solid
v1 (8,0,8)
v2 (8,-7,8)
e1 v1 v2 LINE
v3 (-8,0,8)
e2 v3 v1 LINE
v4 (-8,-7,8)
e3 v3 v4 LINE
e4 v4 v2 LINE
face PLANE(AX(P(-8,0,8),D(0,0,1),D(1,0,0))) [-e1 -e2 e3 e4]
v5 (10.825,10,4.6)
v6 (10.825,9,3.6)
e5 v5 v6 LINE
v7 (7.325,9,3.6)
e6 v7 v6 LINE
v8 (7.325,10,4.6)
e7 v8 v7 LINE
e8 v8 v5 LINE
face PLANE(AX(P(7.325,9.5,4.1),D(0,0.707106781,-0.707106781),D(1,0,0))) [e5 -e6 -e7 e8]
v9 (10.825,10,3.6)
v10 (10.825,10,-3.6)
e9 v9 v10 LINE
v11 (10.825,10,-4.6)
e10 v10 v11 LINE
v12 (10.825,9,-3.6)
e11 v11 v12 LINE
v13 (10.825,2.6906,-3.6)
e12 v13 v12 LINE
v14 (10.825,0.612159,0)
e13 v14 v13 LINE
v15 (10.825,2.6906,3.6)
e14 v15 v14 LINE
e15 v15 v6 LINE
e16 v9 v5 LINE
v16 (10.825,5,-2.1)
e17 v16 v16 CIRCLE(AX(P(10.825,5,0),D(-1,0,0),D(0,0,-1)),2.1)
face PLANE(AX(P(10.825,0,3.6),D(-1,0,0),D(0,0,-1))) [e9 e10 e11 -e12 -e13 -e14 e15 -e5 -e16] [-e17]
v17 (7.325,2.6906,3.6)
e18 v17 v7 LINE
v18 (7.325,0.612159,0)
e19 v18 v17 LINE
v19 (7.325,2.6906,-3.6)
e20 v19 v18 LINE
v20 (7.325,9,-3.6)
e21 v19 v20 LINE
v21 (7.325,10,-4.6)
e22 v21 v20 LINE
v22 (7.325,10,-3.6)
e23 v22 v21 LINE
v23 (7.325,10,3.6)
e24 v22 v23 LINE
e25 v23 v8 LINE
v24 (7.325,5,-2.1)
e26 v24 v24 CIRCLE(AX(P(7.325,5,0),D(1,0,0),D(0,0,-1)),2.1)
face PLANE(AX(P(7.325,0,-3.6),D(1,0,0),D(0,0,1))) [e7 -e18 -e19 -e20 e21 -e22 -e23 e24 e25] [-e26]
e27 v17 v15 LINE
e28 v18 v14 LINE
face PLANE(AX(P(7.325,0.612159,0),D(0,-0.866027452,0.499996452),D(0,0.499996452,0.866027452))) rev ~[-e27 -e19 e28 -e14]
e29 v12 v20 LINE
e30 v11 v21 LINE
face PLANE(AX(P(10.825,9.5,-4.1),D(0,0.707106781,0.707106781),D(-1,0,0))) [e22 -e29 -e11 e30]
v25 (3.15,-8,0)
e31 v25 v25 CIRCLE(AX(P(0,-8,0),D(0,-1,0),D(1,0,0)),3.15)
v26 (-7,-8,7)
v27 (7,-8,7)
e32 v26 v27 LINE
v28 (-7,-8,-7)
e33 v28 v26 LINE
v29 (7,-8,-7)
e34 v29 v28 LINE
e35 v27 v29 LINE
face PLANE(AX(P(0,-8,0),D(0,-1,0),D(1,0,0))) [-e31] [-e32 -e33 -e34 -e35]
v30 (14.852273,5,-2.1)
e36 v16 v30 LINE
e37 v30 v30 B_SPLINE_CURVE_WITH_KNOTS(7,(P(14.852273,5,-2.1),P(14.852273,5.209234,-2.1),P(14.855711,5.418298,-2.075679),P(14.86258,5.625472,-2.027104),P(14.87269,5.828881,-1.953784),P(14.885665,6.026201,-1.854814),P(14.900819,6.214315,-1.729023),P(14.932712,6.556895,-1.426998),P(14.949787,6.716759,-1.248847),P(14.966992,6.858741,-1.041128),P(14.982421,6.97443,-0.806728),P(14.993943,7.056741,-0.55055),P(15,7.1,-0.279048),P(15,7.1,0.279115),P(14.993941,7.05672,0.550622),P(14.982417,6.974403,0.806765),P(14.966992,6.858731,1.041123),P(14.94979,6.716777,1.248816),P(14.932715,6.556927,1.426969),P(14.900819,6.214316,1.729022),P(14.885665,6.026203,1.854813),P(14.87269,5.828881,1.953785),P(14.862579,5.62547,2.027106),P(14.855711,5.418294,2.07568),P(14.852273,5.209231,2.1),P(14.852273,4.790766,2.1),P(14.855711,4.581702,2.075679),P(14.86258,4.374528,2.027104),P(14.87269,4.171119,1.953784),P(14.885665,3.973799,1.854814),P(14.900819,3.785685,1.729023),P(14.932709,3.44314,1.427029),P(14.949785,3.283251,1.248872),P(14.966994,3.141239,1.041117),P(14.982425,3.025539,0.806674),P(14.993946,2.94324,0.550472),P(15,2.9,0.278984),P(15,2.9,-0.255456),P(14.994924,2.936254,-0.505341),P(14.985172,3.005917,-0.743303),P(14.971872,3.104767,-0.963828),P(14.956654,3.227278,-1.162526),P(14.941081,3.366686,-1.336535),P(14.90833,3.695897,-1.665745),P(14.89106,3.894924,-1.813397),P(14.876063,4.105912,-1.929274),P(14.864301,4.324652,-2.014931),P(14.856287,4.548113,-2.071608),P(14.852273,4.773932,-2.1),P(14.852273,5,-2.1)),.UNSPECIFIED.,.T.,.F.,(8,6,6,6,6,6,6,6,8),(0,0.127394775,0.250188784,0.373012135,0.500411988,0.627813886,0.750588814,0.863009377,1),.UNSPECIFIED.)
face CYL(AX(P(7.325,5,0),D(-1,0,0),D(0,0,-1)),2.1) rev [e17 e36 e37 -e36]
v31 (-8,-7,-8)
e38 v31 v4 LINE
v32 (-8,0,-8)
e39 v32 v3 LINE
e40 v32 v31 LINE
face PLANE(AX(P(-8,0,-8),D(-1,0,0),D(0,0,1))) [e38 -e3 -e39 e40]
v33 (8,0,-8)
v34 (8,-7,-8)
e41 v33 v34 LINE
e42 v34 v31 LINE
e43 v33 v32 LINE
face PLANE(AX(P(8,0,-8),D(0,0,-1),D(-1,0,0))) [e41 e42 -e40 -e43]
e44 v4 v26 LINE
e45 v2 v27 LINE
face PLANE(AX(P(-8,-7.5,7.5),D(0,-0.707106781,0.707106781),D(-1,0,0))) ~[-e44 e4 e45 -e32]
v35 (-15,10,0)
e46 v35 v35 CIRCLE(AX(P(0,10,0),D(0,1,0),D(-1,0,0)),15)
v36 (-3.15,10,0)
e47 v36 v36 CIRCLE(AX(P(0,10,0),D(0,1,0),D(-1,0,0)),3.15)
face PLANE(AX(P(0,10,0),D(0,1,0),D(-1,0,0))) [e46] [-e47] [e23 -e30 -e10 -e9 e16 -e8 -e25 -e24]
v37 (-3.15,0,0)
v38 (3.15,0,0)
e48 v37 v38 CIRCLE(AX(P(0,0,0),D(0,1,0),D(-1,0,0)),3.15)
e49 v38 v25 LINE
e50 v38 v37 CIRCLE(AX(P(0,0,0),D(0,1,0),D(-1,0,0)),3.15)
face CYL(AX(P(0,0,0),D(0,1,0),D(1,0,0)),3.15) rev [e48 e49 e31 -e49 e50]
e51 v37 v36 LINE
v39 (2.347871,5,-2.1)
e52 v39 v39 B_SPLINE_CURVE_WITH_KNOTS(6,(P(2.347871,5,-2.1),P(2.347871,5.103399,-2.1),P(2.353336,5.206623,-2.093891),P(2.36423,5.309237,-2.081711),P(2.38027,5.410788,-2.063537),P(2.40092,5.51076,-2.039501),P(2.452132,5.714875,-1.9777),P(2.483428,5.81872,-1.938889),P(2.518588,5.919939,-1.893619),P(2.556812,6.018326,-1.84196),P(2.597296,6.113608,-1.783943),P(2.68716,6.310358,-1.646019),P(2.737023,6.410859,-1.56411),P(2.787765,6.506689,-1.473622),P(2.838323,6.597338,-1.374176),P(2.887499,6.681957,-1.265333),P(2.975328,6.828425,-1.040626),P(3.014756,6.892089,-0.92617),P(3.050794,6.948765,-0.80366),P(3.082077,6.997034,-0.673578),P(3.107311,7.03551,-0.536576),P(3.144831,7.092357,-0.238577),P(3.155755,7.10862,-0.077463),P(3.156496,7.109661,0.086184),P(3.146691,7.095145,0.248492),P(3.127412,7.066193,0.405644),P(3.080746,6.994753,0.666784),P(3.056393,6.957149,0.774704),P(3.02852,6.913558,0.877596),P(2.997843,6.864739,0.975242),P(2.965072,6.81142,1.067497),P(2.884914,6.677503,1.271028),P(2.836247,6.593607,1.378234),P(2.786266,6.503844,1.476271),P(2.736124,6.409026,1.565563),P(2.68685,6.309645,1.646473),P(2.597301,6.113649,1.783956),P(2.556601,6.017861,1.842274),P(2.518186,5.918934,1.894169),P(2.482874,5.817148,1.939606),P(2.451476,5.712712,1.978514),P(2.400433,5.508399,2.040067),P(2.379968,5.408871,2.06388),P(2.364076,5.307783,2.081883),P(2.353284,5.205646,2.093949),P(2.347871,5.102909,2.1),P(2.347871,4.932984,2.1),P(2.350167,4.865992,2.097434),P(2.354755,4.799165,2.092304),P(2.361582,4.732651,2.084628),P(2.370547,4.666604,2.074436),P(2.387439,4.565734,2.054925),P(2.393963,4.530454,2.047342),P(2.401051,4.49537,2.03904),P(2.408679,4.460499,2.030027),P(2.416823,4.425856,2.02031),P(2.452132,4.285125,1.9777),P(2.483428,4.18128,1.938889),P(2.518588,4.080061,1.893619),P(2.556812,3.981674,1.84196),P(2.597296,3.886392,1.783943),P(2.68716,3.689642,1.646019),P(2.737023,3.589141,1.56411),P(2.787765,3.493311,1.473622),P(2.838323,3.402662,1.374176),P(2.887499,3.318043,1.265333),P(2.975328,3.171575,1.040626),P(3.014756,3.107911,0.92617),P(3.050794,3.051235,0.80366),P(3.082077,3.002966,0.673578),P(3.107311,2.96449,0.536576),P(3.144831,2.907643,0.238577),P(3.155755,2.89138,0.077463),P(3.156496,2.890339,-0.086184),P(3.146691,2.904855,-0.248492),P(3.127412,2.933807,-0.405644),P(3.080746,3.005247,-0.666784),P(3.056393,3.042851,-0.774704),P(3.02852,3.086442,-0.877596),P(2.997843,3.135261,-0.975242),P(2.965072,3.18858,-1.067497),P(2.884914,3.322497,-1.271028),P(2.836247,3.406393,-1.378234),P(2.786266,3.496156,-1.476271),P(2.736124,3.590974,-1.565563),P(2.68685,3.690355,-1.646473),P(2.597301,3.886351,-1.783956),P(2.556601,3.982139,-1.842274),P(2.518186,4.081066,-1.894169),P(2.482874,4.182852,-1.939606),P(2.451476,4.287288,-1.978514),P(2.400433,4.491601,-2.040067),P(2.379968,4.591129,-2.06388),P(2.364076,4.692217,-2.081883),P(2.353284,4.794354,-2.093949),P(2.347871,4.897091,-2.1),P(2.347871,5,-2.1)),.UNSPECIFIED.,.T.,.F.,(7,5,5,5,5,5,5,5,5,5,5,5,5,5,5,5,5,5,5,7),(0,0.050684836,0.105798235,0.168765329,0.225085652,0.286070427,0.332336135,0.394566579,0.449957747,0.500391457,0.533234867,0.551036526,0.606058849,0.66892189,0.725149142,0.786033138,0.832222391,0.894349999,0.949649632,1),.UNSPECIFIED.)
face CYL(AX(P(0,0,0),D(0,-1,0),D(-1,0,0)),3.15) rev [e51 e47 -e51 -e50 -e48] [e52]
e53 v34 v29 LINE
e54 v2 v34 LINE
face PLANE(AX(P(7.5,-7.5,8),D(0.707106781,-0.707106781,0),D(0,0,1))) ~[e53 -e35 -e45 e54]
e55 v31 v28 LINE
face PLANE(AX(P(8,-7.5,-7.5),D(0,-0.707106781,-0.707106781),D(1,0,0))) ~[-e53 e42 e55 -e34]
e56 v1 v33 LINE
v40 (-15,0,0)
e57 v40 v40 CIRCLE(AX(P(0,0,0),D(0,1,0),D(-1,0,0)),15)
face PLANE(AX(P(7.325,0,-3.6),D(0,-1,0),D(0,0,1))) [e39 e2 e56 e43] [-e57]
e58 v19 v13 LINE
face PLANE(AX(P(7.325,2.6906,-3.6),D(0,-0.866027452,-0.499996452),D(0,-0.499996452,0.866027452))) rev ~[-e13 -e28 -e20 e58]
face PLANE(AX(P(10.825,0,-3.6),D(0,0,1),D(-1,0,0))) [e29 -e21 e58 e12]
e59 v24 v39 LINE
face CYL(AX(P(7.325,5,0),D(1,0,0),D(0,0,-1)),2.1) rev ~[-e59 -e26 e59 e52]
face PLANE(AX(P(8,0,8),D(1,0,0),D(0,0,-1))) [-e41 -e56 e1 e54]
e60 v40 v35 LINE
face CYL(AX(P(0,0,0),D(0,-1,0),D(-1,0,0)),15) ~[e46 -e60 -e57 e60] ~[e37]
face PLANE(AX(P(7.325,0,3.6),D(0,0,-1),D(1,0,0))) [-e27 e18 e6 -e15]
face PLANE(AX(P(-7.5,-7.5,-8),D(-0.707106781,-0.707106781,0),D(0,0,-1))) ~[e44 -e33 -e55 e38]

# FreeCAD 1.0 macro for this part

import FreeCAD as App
import Part
import Sketcher

V = App.Vector
Q = App.Units.Quantity


def edges_at(feature, points):
    """Names of the edges that pass closest to the given points."""
    edges = feature.Shape.Edges
    near = lambda p: min(range(len(edges)), key=lambda i: edges[i].distToShape(Part.Vertex(*p))[0])
    return sorted({f"Edge{near(p) + 1}" for p in points})


def add_polygon(sketch, points):
    """Adds a closed chain of lines whose ends are joined by coincident constraints."""
    first, n = sketch.GeometryCount, len(points)
    for a, b in zip(points, points[1:] + points[:1]):
        sketch.addGeometry(Part.LineSegment(App.Vector(*a, 0), App.Vector(*b, 0)), False)
    for i in range(n):
        sketch.addConstraint(Sketcher.Constraint("Coincident", first + i, 2, first + (i + 1) % n, 1))

doc = App.newDocument("Part")
body = doc.addObject("PartDesign::Body", "Body")

sketch1 = body.newObject("Sketcher::SketchObject", "Sketch")
sketch1.AttachmentSupport = (doc.getObject("XZ_Plane"), [""])
sketch1.MapMode = "FlatFace"
sketch1.addGeometry(Part.Circle(V(0, 0, 0), V(0, 0, 1), 15), False)
add_polygon(sketch1, [(10.8, 3.6), (7.3, 3.6), (7.3, -3.6), (10.8, -3.6)])
sketch1.addGeometry(Part.Circle(V(0, 0, 0), V(0, 0, 1), 3.1), False)
sketch1.addConstraint(Sketcher.Constraint("Horizontal", 1))
sketch1.addConstraint(Sketcher.Constraint("Vertical", 2))
sketch1.addConstraint(Sketcher.Constraint("Horizontal", 3))
sketch1.addConstraint(Sketcher.Constraint("Vertical", 4))
sketch1.addConstraint(Sketcher.Constraint("Coincident", 0, 3, -1, 1))
sketch1.addConstraint(Sketcher.Constraint("Coincident", 5, 3, -1, 1))
sketch1.addConstraint(Sketcher.Constraint("Diameter", 0, 30.0))
sketch1.addConstraint(Sketcher.Constraint("Diameter", 5, 6.3))
sketch1.addConstraint(Sketcher.Constraint("DistanceX", 1, 2, 1, 1, 3.5))
sketch1.addConstraint(Sketcher.Constraint("DistanceY", 2, 2, 2, 1, 7.2))
sketch1.addConstraint(Sketcher.Constraint("DistanceY", -1, 1, 1, 2, 3.6))
sketch1.addConstraint(Sketcher.Constraint("DistanceX", -1, 1, 1, 2, 7.325))
pad1 = body.newObject("PartDesign::Pad", "Pad")
pad1.Profile = sketch1
pad1.Length = 10
pad1.Reversed = True

sketch2 = body.newObject("Sketcher::SketchObject", "Sketch001")
sketch2.AttachmentSupport = (doc.getObject("YZ_Plane"), [""])
sketch2.MapMode = "FlatFace"
sketch2.AttachmentOffset = App.Placement(V(0, 0, 7.325), App.Rotation())
sketch2.addGeometry(Part.Circle(V(5, 0, 0), V(0, 0, 1), 2.1), False)
sketch2.addConstraint(Sketcher.Constraint("PointOnObject", 0, 3, -1))
sketch2.addConstraint(Sketcher.Constraint("Diameter", 0, 4.2))
sketch2.addConstraint(Sketcher.Constraint("DistanceX", -1, 1, 0, 3, 5.0))
pocket1 = body.newObject("PartDesign::Pocket", "Pocket")
pocket1.Profile = sketch2
pocket1.Length = 16
pocket1.Midplane = True

sketch3 = body.newObject("Sketcher::SketchObject", "Sketch002")
sketch3.AttachmentSupport = (doc.getObject("YZ_Plane"), [""])
sketch3.MapMode = "FlatFace"
sketch3.AttachmentOffset = App.Placement(V(0, 0, 7.325), App.Rotation())
add_polygon(sketch3, [(0, -3.6), (2.7, -3.6), (0.6, 0), (2.7, 3.6), (0, 3.6)])
sketch3.addConstraint(Sketcher.Constraint("Horizontal", 0))
sketch3.addConstraint(Sketcher.Constraint("Horizontal", 3))
sketch3.addConstraint(Sketcher.Constraint("Vertical", 4))
sketch3.addConstraint(Sketcher.Constraint("Symmetric", 3, 2, 4, 2, -1, 1))
sketch3.addConstraint(Sketcher.Constraint("PointOnObject", 1, 2, -1))
sketch3.addConstraint(Sketcher.Constraint("Vertical", 0, 2, 2, 2))
sketch3.addConstraint(Sketcher.Constraint("Angle", 1, Q("119.9998 deg")))
sketch3.addConstraint(Sketcher.Constraint("DistanceY", 4, 2, 4, 1, 7.2))
sketch3.addConstraint(Sketcher.Constraint("DistanceX", 0, 1, 0, 2, 2.6906))
pad2 = body.newObject("PartDesign::Pad", "Pad001")
pad2.Profile = sketch3
pad2.Type = "UpToFirst"

sketch4 = body.newObject("Sketcher::SketchObject", "Sketch003")
sketch4.AttachmentSupport = (doc.getObject("XZ_Plane"), [""])
sketch4.MapMode = "FlatFace"
add_polygon(sketch4, [(8, 8), (-8, 8), (-8, -8), (8, -8)])
sketch4.addGeometry(Part.Circle(V(0, 0, 0), V(0, 0, 1), 3.1), False)
sketch4.addConstraint(Sketcher.Constraint("Horizontal", 0))
sketch4.addConstraint(Sketcher.Constraint("Vertical", 1))
sketch4.addConstraint(Sketcher.Constraint("Horizontal", 2))
sketch4.addConstraint(Sketcher.Constraint("Vertical", 3))
sketch4.addConstraint(Sketcher.Constraint("Coincident", 4, 3, -1, 1))
sketch4.addConstraint(Sketcher.Constraint("Symmetric", 0, 2, 2, 2, -1, 1))
sketch4.addConstraint(Sketcher.Constraint("Equal", 2, 1))
sketch4.addConstraint(Sketcher.Constraint("DistanceX", 0, 2, 0, 1, 16.0))
sketch4.addConstraint(Sketcher.Constraint("Diameter", 4, 6.3))
pad3 = body.newObject("PartDesign::Pad", "Pad002")
pad3.Profile = sketch4
pad3.Length = 8
doc.recompute()

chamfer = body.newObject("PartDesign::Chamfer", "Chamfer")
chamfer.Base = (pad3, edges_at(pad3, [(9.075, 10, 3.6), (9.075, 10, -3.6)]))
chamfer.Size = 1
doc.recompute()

chamfer2 = body.newObject("PartDesign::Chamfer", "Chamfer001")
chamfer2.Base = (chamfer, edges_at(chamfer, [
    (0, -8, 8),
    (-8, -8, 0),
    (0, -8, -8),
    (8, -8, 0),
]))
chamfer2.Size = 1

doc.recompute()
